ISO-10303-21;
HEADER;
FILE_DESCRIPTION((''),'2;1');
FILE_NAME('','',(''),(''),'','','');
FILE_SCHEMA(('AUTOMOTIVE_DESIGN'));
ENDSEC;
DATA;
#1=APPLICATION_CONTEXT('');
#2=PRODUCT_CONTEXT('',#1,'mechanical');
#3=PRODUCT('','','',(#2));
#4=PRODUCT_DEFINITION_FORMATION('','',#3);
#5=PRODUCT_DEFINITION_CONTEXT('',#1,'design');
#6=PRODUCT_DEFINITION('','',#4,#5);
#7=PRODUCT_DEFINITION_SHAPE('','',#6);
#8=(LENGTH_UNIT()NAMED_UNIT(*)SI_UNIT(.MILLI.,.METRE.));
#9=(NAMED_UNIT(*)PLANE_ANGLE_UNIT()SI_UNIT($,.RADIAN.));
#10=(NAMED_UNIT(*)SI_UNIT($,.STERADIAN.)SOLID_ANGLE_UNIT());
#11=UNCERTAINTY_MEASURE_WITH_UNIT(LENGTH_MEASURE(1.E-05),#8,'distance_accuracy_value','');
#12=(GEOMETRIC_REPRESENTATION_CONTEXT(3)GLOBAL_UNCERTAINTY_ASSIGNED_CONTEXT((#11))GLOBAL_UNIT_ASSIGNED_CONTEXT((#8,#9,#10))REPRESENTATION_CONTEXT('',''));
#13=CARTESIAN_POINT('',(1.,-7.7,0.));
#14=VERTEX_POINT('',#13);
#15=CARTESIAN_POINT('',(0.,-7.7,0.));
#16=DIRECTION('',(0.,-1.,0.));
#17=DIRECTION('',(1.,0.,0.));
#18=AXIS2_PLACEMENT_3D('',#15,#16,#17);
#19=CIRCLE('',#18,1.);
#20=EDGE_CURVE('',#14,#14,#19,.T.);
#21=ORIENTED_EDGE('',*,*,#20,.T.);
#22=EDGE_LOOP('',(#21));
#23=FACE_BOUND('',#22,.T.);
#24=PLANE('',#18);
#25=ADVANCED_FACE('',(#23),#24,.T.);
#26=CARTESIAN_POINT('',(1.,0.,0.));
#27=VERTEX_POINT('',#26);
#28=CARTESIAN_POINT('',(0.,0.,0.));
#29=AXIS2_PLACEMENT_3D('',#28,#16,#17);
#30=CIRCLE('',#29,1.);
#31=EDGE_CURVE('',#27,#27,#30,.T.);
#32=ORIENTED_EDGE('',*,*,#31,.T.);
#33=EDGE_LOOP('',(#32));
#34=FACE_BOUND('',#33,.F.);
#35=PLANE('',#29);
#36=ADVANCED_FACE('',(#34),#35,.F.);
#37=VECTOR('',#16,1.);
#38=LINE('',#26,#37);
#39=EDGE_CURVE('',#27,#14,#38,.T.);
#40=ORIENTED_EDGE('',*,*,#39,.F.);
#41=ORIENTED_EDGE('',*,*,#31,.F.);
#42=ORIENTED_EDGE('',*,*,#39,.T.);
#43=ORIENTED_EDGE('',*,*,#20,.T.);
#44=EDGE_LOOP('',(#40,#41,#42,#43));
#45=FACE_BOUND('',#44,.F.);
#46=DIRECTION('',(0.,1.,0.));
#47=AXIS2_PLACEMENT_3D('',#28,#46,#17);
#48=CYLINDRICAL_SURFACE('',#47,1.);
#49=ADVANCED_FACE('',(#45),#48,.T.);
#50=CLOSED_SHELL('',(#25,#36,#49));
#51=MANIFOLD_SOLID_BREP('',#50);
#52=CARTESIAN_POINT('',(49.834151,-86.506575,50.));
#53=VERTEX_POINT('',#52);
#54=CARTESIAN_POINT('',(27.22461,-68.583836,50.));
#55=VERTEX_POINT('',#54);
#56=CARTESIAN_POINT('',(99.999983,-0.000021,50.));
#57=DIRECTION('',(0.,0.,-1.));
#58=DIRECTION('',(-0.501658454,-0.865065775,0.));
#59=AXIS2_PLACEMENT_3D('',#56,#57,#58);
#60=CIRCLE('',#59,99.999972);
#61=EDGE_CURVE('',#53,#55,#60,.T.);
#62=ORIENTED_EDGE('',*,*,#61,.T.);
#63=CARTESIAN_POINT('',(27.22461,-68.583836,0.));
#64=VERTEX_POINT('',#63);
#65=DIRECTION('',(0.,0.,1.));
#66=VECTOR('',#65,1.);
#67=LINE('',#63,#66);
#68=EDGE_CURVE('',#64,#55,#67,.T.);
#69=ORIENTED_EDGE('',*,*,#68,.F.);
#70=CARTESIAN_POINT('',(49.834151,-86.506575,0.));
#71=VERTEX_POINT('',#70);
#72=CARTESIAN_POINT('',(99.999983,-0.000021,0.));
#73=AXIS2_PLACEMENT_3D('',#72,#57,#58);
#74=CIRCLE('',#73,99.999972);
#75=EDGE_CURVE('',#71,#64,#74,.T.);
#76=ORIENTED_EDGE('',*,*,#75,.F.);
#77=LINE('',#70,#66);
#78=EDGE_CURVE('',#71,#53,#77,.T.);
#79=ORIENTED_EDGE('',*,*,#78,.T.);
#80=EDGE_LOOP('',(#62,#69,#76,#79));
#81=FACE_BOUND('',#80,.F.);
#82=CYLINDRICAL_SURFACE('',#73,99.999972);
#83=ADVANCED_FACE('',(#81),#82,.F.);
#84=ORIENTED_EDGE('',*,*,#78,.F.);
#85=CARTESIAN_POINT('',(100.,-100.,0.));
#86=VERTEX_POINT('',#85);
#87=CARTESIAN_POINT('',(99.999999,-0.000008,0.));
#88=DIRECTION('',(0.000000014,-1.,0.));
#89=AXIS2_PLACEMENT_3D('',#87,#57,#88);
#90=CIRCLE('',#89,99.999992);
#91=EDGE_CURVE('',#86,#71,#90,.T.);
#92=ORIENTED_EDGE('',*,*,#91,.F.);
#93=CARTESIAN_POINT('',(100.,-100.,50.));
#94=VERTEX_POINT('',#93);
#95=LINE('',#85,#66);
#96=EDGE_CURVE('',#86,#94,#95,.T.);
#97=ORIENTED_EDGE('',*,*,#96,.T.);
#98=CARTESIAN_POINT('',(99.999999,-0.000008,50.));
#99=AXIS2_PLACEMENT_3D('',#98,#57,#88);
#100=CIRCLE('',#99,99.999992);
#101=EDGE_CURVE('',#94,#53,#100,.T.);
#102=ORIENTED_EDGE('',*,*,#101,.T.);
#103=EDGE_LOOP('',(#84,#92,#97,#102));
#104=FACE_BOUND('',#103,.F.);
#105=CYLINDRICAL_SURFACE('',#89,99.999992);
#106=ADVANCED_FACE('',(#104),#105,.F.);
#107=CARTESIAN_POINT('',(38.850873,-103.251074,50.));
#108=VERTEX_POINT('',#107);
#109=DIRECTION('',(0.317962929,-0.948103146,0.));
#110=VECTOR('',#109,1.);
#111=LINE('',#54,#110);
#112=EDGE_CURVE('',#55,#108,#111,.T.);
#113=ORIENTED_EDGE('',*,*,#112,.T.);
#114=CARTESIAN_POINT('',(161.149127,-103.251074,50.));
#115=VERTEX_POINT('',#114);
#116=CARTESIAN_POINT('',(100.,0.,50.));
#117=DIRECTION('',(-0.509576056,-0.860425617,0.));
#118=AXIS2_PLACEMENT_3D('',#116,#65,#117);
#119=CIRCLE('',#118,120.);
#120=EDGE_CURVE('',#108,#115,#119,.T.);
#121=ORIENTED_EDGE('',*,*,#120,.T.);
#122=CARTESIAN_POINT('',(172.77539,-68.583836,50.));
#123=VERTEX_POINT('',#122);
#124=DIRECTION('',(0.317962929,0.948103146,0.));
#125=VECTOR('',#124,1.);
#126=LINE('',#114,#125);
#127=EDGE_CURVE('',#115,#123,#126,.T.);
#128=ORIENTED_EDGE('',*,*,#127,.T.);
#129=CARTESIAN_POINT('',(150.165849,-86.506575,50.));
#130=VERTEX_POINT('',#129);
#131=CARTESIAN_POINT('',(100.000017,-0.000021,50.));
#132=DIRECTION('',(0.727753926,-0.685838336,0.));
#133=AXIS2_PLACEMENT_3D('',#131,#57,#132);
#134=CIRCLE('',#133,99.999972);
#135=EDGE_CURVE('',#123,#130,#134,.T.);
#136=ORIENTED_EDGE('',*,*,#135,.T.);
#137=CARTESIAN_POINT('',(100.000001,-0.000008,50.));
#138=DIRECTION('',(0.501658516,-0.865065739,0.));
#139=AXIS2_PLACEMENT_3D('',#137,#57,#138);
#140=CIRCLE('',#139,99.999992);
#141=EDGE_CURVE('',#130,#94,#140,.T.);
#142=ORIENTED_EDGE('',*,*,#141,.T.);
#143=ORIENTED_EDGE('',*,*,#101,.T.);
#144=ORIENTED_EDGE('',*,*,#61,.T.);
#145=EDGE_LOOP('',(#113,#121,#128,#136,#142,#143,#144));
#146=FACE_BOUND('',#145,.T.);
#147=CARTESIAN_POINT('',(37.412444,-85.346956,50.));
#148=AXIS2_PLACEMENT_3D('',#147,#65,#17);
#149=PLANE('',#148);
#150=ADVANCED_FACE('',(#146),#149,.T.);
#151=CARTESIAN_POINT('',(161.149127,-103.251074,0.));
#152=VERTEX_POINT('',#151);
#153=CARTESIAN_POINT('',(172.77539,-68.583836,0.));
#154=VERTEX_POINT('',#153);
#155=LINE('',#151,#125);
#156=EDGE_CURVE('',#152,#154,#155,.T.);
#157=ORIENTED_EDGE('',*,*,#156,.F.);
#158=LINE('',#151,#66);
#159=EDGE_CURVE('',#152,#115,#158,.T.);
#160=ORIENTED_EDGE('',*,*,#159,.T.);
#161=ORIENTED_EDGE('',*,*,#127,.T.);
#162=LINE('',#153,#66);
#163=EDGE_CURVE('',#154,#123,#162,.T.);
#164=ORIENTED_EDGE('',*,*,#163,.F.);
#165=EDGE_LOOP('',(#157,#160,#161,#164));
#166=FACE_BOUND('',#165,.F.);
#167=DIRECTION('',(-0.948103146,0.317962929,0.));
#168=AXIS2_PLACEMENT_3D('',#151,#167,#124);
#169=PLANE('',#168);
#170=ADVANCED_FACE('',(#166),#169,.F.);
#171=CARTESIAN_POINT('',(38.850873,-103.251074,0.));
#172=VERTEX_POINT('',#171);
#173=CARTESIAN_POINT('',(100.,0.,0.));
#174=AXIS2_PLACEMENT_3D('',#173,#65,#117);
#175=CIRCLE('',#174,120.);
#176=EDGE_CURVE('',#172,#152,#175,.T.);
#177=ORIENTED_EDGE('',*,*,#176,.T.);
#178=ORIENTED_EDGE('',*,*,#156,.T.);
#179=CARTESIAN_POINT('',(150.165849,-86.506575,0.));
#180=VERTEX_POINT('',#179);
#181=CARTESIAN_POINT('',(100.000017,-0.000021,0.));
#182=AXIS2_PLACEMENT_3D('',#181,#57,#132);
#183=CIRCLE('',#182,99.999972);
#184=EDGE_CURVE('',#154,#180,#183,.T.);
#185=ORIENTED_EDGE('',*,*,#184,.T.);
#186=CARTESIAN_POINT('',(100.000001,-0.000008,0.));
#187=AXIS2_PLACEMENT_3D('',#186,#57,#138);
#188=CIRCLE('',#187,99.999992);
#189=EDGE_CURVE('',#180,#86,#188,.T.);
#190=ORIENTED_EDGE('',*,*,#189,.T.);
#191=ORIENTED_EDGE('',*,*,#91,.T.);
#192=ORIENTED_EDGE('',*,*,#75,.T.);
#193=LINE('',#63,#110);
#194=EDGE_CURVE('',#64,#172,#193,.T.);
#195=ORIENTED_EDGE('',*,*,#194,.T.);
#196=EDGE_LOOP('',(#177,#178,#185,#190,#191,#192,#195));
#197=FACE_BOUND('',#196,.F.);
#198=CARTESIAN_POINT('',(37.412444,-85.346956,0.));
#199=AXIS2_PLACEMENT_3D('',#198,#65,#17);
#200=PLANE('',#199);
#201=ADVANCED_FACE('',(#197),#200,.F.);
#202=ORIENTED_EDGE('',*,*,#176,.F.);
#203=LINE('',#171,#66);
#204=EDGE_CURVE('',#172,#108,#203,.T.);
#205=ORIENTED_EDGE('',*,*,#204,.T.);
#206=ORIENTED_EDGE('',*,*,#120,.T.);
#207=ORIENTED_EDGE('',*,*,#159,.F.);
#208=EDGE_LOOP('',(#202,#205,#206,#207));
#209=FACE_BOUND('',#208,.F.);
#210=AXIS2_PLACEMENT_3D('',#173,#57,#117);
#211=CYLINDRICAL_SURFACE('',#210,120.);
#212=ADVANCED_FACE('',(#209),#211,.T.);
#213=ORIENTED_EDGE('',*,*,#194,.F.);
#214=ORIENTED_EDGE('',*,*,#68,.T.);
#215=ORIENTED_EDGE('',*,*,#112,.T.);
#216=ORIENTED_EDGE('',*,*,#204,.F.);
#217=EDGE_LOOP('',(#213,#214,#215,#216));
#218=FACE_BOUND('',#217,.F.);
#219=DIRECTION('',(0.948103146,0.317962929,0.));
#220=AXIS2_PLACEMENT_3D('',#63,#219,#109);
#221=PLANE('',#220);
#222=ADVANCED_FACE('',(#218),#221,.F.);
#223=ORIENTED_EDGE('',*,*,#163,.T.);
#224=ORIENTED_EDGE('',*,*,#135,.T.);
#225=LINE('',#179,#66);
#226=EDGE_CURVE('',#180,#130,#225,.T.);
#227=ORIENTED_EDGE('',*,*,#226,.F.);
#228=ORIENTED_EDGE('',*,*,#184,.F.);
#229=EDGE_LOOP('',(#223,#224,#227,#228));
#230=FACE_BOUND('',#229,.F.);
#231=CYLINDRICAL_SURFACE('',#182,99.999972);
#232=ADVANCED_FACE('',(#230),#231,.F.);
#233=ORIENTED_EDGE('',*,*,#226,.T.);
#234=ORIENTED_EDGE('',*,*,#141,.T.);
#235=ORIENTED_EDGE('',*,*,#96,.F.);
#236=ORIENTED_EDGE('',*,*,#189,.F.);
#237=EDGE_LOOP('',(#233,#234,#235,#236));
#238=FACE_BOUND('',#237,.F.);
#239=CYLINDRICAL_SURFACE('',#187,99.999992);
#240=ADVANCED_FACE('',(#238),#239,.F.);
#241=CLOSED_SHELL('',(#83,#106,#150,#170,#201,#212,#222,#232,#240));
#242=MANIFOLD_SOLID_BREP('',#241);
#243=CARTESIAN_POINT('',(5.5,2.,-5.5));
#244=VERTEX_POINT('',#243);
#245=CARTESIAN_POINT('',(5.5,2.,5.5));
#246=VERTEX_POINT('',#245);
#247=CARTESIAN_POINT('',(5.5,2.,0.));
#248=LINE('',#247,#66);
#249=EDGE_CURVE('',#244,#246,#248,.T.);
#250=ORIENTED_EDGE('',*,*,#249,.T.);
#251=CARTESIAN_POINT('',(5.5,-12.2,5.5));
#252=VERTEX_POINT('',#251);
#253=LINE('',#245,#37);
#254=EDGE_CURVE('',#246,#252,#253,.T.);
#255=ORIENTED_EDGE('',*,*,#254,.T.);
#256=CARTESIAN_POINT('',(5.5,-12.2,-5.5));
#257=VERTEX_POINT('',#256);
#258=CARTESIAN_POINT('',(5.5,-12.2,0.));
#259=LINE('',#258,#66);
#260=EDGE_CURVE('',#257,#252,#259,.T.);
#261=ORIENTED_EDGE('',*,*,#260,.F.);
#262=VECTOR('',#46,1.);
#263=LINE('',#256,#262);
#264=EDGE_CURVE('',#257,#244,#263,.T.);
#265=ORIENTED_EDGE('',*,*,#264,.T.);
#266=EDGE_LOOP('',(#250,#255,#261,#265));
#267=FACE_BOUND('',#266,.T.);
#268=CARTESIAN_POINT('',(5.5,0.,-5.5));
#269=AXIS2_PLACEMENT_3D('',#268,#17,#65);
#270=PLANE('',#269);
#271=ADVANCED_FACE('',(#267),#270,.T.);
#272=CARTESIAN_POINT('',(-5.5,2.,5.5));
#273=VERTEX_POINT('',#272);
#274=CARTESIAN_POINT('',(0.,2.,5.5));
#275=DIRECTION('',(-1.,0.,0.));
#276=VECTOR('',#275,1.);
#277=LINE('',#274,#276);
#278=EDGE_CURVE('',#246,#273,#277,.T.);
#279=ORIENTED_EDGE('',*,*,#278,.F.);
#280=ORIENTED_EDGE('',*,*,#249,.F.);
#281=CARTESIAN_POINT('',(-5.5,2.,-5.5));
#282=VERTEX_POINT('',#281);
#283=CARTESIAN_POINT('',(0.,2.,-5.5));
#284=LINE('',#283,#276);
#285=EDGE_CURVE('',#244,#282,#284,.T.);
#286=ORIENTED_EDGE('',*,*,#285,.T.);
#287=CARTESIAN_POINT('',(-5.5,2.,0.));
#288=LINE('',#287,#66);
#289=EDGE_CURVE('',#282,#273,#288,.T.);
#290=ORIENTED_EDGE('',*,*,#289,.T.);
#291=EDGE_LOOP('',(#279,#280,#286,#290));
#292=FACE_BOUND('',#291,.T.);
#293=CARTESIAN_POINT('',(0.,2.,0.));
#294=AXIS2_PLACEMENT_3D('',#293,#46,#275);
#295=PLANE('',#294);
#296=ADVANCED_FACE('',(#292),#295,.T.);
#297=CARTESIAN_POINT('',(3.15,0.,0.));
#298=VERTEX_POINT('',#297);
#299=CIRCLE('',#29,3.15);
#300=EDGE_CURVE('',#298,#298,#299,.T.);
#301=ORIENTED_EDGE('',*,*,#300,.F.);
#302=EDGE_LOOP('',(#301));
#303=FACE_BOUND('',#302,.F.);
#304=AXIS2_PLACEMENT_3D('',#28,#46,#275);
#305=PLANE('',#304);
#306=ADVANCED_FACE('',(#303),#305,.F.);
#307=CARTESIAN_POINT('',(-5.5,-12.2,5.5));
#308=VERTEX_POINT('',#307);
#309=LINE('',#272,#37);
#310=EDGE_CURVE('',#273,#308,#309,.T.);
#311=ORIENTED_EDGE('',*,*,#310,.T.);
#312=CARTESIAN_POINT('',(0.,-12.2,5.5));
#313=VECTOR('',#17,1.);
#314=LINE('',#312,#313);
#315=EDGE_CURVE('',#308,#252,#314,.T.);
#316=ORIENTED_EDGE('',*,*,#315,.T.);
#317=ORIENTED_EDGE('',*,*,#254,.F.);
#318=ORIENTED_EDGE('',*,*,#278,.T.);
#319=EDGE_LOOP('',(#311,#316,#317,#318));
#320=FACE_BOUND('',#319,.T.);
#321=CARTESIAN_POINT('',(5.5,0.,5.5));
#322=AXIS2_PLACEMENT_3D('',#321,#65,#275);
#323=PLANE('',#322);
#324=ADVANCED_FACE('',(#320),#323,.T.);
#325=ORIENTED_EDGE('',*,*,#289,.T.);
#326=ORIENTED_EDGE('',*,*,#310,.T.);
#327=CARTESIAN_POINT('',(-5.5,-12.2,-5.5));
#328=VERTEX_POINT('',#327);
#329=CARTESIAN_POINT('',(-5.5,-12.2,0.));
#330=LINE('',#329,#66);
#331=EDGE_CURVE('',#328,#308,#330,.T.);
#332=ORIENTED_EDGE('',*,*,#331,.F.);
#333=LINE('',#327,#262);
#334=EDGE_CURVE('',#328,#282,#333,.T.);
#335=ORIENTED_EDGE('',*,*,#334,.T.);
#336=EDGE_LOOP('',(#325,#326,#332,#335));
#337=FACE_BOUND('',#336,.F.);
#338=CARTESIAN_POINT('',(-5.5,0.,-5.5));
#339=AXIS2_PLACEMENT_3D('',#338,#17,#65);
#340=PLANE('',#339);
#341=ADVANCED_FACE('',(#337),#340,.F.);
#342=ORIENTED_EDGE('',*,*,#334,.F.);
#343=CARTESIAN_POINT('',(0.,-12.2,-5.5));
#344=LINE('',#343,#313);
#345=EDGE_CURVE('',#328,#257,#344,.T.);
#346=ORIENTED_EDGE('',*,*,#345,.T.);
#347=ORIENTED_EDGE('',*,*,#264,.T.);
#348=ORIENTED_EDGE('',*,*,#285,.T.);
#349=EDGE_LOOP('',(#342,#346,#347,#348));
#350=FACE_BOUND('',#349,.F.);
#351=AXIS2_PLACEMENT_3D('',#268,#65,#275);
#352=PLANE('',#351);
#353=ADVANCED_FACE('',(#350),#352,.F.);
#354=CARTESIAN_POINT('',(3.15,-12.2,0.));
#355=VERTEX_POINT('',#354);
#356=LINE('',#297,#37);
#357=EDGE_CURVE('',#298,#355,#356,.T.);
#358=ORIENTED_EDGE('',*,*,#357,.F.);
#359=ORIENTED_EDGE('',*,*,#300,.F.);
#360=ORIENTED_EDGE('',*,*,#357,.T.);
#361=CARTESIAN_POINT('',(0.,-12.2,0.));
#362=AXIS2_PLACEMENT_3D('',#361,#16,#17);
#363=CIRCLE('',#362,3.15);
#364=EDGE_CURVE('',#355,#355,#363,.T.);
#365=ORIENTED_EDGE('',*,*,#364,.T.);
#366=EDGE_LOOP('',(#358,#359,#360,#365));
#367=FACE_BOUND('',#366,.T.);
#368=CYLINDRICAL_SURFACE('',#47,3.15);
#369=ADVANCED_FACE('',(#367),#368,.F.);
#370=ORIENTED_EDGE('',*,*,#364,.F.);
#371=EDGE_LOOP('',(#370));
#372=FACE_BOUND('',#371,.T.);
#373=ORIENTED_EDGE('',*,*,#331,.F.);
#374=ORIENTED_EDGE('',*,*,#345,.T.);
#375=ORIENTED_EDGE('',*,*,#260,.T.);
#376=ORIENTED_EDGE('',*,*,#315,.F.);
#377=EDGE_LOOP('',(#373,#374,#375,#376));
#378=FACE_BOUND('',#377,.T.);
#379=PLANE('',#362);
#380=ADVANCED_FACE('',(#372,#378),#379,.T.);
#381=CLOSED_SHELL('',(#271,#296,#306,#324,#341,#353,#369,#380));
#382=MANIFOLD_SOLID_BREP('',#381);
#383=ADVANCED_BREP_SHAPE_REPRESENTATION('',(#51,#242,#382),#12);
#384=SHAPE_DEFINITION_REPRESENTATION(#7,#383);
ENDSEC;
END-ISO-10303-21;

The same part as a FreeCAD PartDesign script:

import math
import FreeCAD as App
import Part
import Sketcher

V = App.Vector

doc = App.newDocument("Part")
body = doc.addObject("PartDesign::Body", "Body")

# Sketch on XY plane
sketch1 = body.newObject("Sketcher::SketchObject", "Sketch")
sketch1.AttachmentSupport = (doc.getObject("XY_Plane"), [""])
sketch1.MapMode = "FlatFace"
sketch1.addGeometry([
    Part.ArcOfCircle(Part.Circle(V(100, 0, 0), V(0, 0, 1), 100), math.radians(-136.7), math.radians(-120.11)),  # 0
    Part.LineSegment(V(27, -69, 0), V(39, -103, 0)),  # 1
    Part.ArcOfCircle(Part.Circle(V(100, 0, 0), V(0, 0, 1), 120), math.radians(-121), math.radians(-59)),  # 2
    Part.LineSegment(V(161, -103, 0), V(173, -69, 0)),  # 3
    Part.ArcOfCircle(Part.Circle(V(100, 0, 0), V(0, 0, 1), 100), math.radians(-59.89), math.radians(-43.3)),  # 4
    Part.ArcOfCircle(Part.Circle(V(100, 0, 0), V(0, 0, 1), 100), math.radians(-90), math.radians(-60)),  # 5
    Part.ArcOfCircle(Part.Circle(V(100, 0, 0), V(0, 0, 1), 100), math.radians(-120), math.radians(-90)),  # 6
], False)
sketch1.addConstraint([
    Sketcher.Constraint("Coincident", 0, 1, 1, 1),
    Sketcher.Constraint("Coincident", 1, 2, 2, 1),
    Sketcher.Constraint("Coincident", 2, 2, 3, 1),
    Sketcher.Constraint("Coincident", 3, 2, 4, 2),
    Sketcher.Constraint("Tangent", 4, 1, 5, 2),
    Sketcher.Constraint("Tangent", 5, 1, 6, 2),
    Sketcher.Constraint("Tangent", 6, 1, 0, 2),
    Sketcher.Constraint("Coincident", 5, 3, 2, 3),
    Sketcher.Constraint("Equal", 0, 4),
    Sketcher.Constraint("Equal", 5, 6),
    Sketcher.Constraint("PointOnObject", 2, 3, -1),
    Sketcher.Constraint("Horizontal", 1, 2, 2, 2),
    Sketcher.Constraint("Horizontal", 0, 1, 3, 2),
    Sketcher.Constraint("Horizontal", 4, 1, 6, 1),
    Sketcher.Constraint("Vertical", 6, 3, 5, 1),
    Sketcher.Constraint("Radius", 2, 120.0),
    Sketcher.Constraint("DistanceX", -1, 1, 2, 3, 100.0),
    Sketcher.Constraint("DistanceY", 5, 1, -1, 1, 100.0),
    Sketcher.Constraint("Radius", 0, 99.999972),
    Sketcher.Constraint("DistanceY", 2, 2, 4, 1, 16.744499),
    Sketcher.Constraint("Distance", 1, 36.564838),
    Sketcher.Constraint("DistanceX", -1, 1, 0, 1, 27.22461),
])
pad1 = body.newObject("PartDesign::Pad", "Pad")
pad1.Profile = sketch1
pad1.Length = 50
body2 = doc.addObject("PartDesign::Body", "Body001")

# Sketch on XZ plane
sketch2 = body2.newObject("Sketcher::SketchObject", "Sketch001")
sketch2.AttachmentSupport = (doc.getObject("XZ_Plane001"), [""])
sketch2.MapMode = "FlatFace"
sketch2.addGeometry([
    Part.LineSegment(V(-5.5, 5.5, 0), V(-5.5, -5.5, 0)),  # 0
    Part.LineSegment(V(-5.5, -5.5, 0), V(5.5, -5.5, 0)),  # 1
    Part.LineSegment(V(5.5, -5.5, 0), V(5.5, 5.5, 0)),  # 2
    Part.LineSegment(V(5.5, 5.5, 0), V(-5.5, 5.5, 0)),  # 3
    Part.Circle(V(0, 0, 0), V(0, 0, 1), 3.1),  # 4
], False)
sketch2.addConstraint([
    Sketcher.Constraint("Coincident", 0, 2, 1, 1),
    Sketcher.Constraint("Coincident", 1, 2, 2, 1),
    Sketcher.Constraint("Coincident", 2, 2, 3, 1),
    Sketcher.Constraint("Coincident", 3, 2, 0, 1),
    Sketcher.Constraint("Vertical", 0),
    Sketcher.Constraint("Horizontal", 1),
    Sketcher.Constraint("Vertical", 2),
    Sketcher.Constraint("Horizontal", 3),
    Sketcher.Constraint("Coincident", 4, 3, -1, 1),
    Sketcher.Constraint("Symmetric", 0, 2, 2, 2, -1, 1),
    Sketcher.Constraint("Equal", 3, 0),
    Sketcher.Constraint("Diameter", 4, 6.3),
    Sketcher.Constraint("DistanceX", 1, 1, 1, 2, 11.0),
])
pad2 = body2.newObject("PartDesign::Pad", "Pad001")
pad2.Profile = sketch2
pad2.Length = 12.2

# Sketch on XZ plane
sketch3 = body2.newObject("Sketcher::SketchObject", "Sketch002")
sketch3.AttachmentSupport = (doc.getObject("XZ_Plane001"), [""])
sketch3.MapMode = "FlatFace"
sketch3.addGeometry([
    Part.LineSegment(V(6, 6, 0), V(6, -6, 0)),
    Part.LineSegment(V(6, -6, 0), V(-6, -6, 0)),
    Part.LineSegment(V(-6, -6, 0), V(-6, 6, 0)),
    Part.LineSegment(V(-6, 6, 0), V(6, 6, 0)),
], False)
sketch3.addConstraint([
    Sketcher.Constraint("Coincident", 0, 2, 1, 1),
    Sketcher.Constraint("Coincident", 1, 2, 2, 1),
    Sketcher.Constraint("Coincident", 2, 2, 3, 1),
    Sketcher.Constraint("Coincident", 3, 2, 0, 1),
    Sketcher.Constraint("Vertical", 0),
    Sketcher.Constraint("Horizontal", 1),
    Sketcher.Constraint("Vertical", 2),
    Sketcher.Constraint("Horizontal", 3),
    Sketcher.Constraint("Symmetric", 0, 2, 2, 2, -1, 1),
    Sketcher.Constraint("Equal", 3, 0),
    Sketcher.Constraint("DistanceX", 1, 2, 1, 1, 11.0),
])
pad3 = body2.newObject("PartDesign::Pad", "Pad002")
pad3.Profile = sketch3
pad3.Length = 2
pad3.Reversed = True
body3 = doc.addObject("PartDesign::Body", "Body002")

# Sketch on XZ plane
sketch4 = body3.newObject("Sketcher::SketchObject", "Sketch003")
sketch4.AttachmentSupport = (doc.getObject("XZ_Plane002"), [""])
sketch4.MapMode = "FlatFace"
sketch4.addGeometry(Part.Circle(V(0, 0, 0), V(0, 0, 1), 1), False)
sketch4.addConstraint([
    Sketcher.Constraint("Coincident", 0, 3, -1, 1),
    Sketcher.Constraint("Diameter", 0, 2.0),
])
pad4 = body3.newObject("PartDesign::Pad", "Pad003")
pad4.Profile = sketch4
pad4.Length = 7.7

doc.recompute()
